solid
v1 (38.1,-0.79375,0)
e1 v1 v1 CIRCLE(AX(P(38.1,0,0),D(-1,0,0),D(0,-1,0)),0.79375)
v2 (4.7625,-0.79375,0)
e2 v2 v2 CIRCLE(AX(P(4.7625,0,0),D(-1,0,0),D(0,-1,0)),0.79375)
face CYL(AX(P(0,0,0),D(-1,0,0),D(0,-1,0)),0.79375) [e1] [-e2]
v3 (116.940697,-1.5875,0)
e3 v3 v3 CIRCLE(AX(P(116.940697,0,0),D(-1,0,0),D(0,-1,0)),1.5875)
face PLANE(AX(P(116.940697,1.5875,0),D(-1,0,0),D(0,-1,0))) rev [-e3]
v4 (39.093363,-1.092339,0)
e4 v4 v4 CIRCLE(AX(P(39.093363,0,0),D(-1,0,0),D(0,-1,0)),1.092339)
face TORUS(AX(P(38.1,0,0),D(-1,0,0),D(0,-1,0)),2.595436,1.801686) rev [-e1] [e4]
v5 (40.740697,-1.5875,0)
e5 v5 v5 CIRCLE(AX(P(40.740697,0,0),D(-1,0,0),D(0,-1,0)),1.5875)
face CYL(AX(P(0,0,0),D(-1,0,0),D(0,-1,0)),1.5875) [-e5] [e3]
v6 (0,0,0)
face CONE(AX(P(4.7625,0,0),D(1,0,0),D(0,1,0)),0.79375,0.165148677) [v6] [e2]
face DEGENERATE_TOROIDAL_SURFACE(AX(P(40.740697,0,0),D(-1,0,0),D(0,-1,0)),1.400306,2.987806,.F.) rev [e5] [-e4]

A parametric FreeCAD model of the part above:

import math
import FreeCAD as App
import Part
import Sketcher

V = App.Vector
Q = App.Units.Quantity

doc = App.newDocument("Part")
body = doc.addObject("PartDesign::Body", "Body")

# Sketch on XY plane
sketch1 = body.newObject("Sketcher::SketchObject", "Sketch")
sketch1.AttachmentSupport = (doc.getObject("XY_Plane"), [""])
sketch1.MapMode = "FlatFace"
sketch1.addGeometry(Part.LineSegment(V(4.7625, 0.79375, 0), V(0, 0, 0)), False)
sketch1.addGeometry(Part.LineSegment(V(0, 0, 0), V(116.940697, 0, 0)), False)
sketch1.addGeometry(Part.LineSegment(V(116.940697, 0, 0), V(116.940697, 1.5875, 0)), False)
sketch1.addGeometry(Part.LineSegment(V(116.940697, 1.5875, 0), V(40.740697, 1.5875, 0)), False)
sketch1.addGeometry(Part.ArcOfCircle(Part.Circle(V(40.740697, -1.400306, 0), V(0, 0, 1), 2.987806), math.radians(90), math.radians(123.459826)), False)
sketch1.addGeometry(Part.ArcOfCircle(Part.Circle(V(38.1, 2.595436, 0), V(0, 0, 1), 1.801686), math.radians(-90), math.radians(-56.540174)), False)
sketch1.addGeometry(Part.LineSegment(V(38.1, 0.79375, 0), V(4.7625, 0.79375, 0)), False)
sketch1.addConstraint(Sketcher.Constraint("Coincident", 0, 2, 1, 1))
sketch1.addConstraint(Sketcher.Constraint("Coincident", 1, 2, 2, 1))
sketch1.addConstraint(Sketcher.Constraint("Coincident", 2, 2, 3, 1))
sketch1.addConstraint(Sketcher.Constraint("Tangent", 3, 2, 4, 1))
sketch1.addConstraint(Sketcher.Constraint("Tangent", 4, 2, 5, 2))
sketch1.addConstraint(Sketcher.Constraint("Tangent", 5, 1, 6, 1))
sketch1.addConstraint(Sketcher.Constraint("Coincident", 6, 2, 0, 1))
sketch1.addConstraint(Sketcher.Constraint("Horizontal", 1))
sketch1.addConstraint(Sketcher.Constraint("Vertical", 2))
sketch1.addConstraint(Sketcher.Constraint("Horizontal", 3))
sketch1.addConstraint(Sketcher.Constraint("Horizontal", 6))
sketch1.addConstraint(Sketcher.Constraint("Coincident", 0, 2, -1, 1))
sketch1.addConstraint(Sketcher.Constraint("DistanceX", 3, 2, 3, 1, Q("3 in")))
sketch1.addConstraint(Sketcher.Constraint("DistanceX", -1, 1, 5, 3, Q("1.5 in")))
sketch1.addConstraint(Sketcher.Constraint("DistanceX", 6, 2, 6, 1, Q("1.3125 in")))
sketch1.addConstraint(Sketcher.Constraint("DistanceY", 2, 1, 2, 2, Q("0.0625 in")))
sketch1.addConstraint(Sketcher.Constraint("DistanceY", -1, 1, 5, 1, Q("0.03125 in")))
sketch1.addConstraint(Sketcher.Constraint("Radius", 4, 2.987806))
sketch1.addConstraint(Sketcher.Constraint("Radius", 5, 1.801686))
revolution = body.newObject("PartDesign::Revolution", "Revolution")
revolution.Profile = sketch1
revolution.ReferenceAxis = (sketch1, ["H_Axis"])
revolution.Angle = 360

doc.recompute()
